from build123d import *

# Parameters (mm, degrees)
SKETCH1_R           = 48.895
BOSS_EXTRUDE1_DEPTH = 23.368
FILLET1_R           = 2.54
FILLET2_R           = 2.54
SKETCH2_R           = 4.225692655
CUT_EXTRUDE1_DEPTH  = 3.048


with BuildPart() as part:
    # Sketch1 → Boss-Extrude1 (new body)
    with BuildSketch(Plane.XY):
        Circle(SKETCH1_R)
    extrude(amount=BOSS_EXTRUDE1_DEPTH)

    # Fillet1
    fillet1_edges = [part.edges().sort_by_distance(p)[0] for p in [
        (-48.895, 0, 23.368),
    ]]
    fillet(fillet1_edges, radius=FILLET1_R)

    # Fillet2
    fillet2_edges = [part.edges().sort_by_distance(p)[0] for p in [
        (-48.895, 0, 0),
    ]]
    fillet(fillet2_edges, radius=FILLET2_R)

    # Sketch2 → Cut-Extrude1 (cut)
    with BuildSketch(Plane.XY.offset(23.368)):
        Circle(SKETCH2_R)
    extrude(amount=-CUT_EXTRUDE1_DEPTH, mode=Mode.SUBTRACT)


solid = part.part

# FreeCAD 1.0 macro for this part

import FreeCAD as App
import Part
import Sketcher

V = App.Vector
Q = App.Units.Quantity


def edges_at(feature, points):
    """Names of the edges that pass closest to the given points."""
    edges = feature.Shape.Edges
    near = lambda p: min(range(len(edges)), key=lambda i: edges[i].distToShape(Part.Vertex(*p))[0])
    return sorted({f"Edge{near(p) + 1}" for p in points})

doc = App.newDocument("Part")
body = doc.addObject("PartDesign::Body", "Body")

sketch1 = body.newObject("Sketcher::SketchObject", "Sketch")
sketch1.AttachmentSupport = (doc.getObject("XY_Plane"), [""])
sketch1.MapMode = "FlatFace"
sketch1.addGeometry(Part.Circle(V(0, 0, 0), V(0, 0, 1), 49), False)
sketch1.addConstraint(Sketcher.Constraint("Coincident", 0, 3, -1, 1))
sketch1.addConstraint(Sketcher.Constraint("Diameter", 0, Q("3.85 in")))
pad1 = body.newObject("PartDesign::Pad", "Pad")
pad1.Profile = sketch1
pad1.Length = Q("0.92 in")
doc.recompute()

fillet = body.newObject("PartDesign::Fillet", "Fillet")
fillet.Base = (pad1, edges_at(pad1, [(-48.895, 0, 23.368)]))
fillet.Radius = Q("0.1 in")
doc.recompute()

fillet2 = body.newObject("PartDesign::Fillet", "Fillet001")
fillet2.Base = (fillet, edges_at(fillet, [(-48.895, 0, 0)]))
fillet2.Radius = Q("0.1 in")

sketch2 = body.newObject("Sketcher::SketchObject", "Sketch001")
sketch2.AttachmentSupport = (doc.getObject("XY_Plane"), [""])
sketch2.MapMode = "FlatFace"
sketch2.AttachmentOffset = App.Placement(V(0, 0, 0.92 * 25.4), App.Rotation())
sketch2.addGeometry(Part.Circle(V(0, 0, 0), V(0, 0, 1), 4.2), False)
sketch2.addConstraint(Sketcher.Constraint("Coincident", 0, 3, -1, 1))
sketch2.addConstraint(Sketcher.Constraint("Diameter", 0, 8.451385))
pocket1 = body.newObject("PartDesign::Pocket", "Pocket")
pocket1.Profile = sketch2
pocket1.Length = Q("0.12 in")

doc.recompute()
